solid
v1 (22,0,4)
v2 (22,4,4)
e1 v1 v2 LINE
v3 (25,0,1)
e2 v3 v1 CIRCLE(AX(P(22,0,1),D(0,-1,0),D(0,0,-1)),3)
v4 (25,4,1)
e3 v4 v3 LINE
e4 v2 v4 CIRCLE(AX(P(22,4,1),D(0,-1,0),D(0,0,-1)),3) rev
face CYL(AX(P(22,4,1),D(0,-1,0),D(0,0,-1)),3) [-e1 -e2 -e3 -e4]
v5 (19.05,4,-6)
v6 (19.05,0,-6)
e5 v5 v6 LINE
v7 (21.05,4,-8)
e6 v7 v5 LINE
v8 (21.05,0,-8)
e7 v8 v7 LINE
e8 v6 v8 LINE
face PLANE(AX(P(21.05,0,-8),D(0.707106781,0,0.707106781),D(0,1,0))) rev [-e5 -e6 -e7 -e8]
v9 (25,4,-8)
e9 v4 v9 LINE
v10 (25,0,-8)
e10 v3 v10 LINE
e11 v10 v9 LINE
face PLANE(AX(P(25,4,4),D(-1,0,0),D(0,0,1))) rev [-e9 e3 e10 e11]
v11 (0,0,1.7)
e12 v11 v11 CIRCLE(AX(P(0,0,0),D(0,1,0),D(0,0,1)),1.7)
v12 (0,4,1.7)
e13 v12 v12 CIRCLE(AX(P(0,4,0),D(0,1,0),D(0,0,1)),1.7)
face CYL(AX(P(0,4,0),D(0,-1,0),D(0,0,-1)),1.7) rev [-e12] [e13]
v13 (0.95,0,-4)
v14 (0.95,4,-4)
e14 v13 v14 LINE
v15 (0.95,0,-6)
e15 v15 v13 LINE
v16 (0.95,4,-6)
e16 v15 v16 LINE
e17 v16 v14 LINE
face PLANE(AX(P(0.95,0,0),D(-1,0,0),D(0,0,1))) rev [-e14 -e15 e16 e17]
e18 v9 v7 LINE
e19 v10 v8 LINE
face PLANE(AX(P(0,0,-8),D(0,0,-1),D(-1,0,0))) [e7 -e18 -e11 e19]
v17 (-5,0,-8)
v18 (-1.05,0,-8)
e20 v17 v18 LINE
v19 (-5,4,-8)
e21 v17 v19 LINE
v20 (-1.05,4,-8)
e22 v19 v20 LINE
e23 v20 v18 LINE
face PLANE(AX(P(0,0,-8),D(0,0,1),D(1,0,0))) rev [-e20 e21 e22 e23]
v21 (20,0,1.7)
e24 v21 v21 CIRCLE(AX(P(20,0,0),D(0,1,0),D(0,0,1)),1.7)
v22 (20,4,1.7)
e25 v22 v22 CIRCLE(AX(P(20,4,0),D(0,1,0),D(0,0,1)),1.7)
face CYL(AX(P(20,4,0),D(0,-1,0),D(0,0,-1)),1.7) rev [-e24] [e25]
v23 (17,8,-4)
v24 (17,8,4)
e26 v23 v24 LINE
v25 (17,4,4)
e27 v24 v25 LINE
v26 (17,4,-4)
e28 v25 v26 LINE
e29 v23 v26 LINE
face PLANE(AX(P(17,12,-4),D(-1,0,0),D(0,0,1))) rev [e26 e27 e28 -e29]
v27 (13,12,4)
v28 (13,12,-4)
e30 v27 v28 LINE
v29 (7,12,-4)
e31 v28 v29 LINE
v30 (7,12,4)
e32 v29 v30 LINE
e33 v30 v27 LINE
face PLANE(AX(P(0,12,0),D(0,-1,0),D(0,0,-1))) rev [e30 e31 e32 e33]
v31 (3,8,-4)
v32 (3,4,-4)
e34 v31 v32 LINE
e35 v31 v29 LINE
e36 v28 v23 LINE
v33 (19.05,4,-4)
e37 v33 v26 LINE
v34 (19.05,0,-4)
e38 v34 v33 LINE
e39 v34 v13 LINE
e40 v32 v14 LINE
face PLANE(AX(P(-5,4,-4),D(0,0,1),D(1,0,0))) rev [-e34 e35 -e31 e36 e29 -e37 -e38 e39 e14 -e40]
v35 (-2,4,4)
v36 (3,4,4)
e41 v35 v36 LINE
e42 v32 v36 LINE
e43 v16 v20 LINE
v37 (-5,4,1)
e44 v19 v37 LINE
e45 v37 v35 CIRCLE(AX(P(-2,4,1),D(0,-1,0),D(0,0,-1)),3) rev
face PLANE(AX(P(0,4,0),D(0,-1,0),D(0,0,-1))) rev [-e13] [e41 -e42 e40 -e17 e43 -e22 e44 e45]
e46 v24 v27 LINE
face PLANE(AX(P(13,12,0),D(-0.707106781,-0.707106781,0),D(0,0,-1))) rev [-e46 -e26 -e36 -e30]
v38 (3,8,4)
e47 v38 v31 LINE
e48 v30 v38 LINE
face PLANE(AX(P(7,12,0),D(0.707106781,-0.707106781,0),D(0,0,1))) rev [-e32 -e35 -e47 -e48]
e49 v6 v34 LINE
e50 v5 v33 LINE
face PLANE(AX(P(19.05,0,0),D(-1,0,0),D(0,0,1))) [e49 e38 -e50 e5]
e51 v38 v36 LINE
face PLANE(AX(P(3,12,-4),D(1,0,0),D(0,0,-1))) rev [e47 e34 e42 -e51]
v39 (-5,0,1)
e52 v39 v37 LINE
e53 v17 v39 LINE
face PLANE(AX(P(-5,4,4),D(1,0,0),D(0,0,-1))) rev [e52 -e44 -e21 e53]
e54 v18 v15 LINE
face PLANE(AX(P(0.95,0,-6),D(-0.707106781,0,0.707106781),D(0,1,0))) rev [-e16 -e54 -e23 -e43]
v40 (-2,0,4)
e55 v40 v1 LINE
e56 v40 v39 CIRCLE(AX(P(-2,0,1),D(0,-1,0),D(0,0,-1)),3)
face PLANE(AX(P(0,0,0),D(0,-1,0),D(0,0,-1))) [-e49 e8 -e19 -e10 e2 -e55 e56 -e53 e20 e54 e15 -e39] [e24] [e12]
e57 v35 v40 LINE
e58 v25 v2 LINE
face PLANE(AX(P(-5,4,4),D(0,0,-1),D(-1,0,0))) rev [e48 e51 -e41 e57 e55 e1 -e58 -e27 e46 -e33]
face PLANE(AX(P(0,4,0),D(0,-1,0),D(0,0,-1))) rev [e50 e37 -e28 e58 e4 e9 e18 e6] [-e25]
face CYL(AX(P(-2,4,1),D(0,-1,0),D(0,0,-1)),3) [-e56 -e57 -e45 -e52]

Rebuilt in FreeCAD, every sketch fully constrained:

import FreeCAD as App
import Part
import Sketcher


def edges_at(feature, points):
    """Names of the edges that pass closest to the given points."""
    edges = feature.Shape.Edges
    near = lambda p: min(range(len(edges)), key=lambda i: edges[i].distToShape(Part.Vertex(*p))[0])
    return sorted({f"Edge{near(p) + 1}" for p in points})

doc = App.newDocument("Part")
body = doc.addObject("PartDesign::Body", "Body")

# Sketch on XZ plane
sketch1 = body.newObject("Sketcher::SketchObject", "Sketch")
sketch1.AttachmentSupport = (doc.getObject("XZ_Plane"), [""])
sketch1.MapMode = "FlatFace"
sketch1.addGeometry([
    Part.LineSegment(App.Vector(-5, -4, 0), App.Vector(-5, 4, 0)),  # 0
    Part.LineSegment(App.Vector(-5, 4, 0), App.Vector(25, 4, 0)),  # 1
    Part.LineSegment(App.Vector(25, 4, 0), App.Vector(25, -4, 0)),  # 2
    Part.LineSegment(App.Vector(25, -4, 0), App.Vector(-5, -4, 0)),  # 3
    Part.Circle(App.Vector(0, 0, 0), App.Vector(0, 0, 1), 1.7),  # 4
    Part.Circle(App.Vector(20, 0, 0), App.Vector(0, 0, 1), 1.7),  # 5
], False)
sketch1.addConstraint([
    Sketcher.Constraint("Coincident", 0, 2, 1, 1),
    Sketcher.Constraint("Coincident", 1, 2, 2, 1),
    Sketcher.Constraint("Coincident", 2, 2, 3, 1),
    Sketcher.Constraint("Coincident", 3, 2, 0, 1),
    Sketcher.Constraint("Vertical", 0),
    Sketcher.Constraint("Horizontal", 1),
    Sketcher.Constraint("Vertical", 2),
    Sketcher.Constraint("Horizontal", 3),
    Sketcher.Constraint("Coincident", 4, 3, -1, 1),
    Sketcher.Constraint("Equal", 4, 5),
    Sketcher.Constraint("PointOnObject", 5, 3, -1),
    Sketcher.Constraint("Diameter", 4, 3.4),
    Sketcher.Constraint("DistanceX", 1, 1, 1, 2, 30.0),
    Sketcher.Constraint("DistanceY", 0, 1, 0, 2, 8.0),
    Sketcher.Constraint("DistanceX", -1, 1, 5, 3, 20.0),
    Sketcher.Constraint("DistanceX", 0, 2, -1, 1, 5.0),
    Sketcher.Constraint("DistanceY", -1, 1, 0, 2, 4.0),
])
pad1 = body.newObject("PartDesign::Pad", "Pad")
pad1.Profile = sketch1
pad1.Length = 4
pad1.Reversed = True
doc.recompute()

fillet = body.newObject("PartDesign::Fillet", "Fillet")
fillet.Base = (pad1, edges_at(pad1, [(25, 2, 4), (-5, 2, 4)]))
fillet.Radius = 3

# Sketch on XZ plane
sketch2 = body.newObject("Sketcher::SketchObject", "Sketch001")
sketch2.AttachmentSupport = (doc.getObject("XZ_Plane"), [""])
sketch2.MapMode = "FlatFace"
sketch2.AttachmentOffset = App.Placement(App.Vector(0, 0, -4), App.Rotation())
sketch2.addGeometry([
    Part.LineSegment(App.Vector(-5, -8, 0), App.Vector(-5, -4, 0)),  # 0
    Part.LineSegment(App.Vector(-5, -4, 0), App.Vector(0.9, -4, 0)),  # 1
    Part.LineSegment(App.Vector(0.9, -4, 0), App.Vector(0.9, -8, 0)),  # 2
    Part.LineSegment(App.Vector(0.9, -8, 0), App.Vector(-5, -8, 0)),  # 3
    Part.LineSegment(App.Vector(19.1, -8, 0), App.Vector(19.1, -4, 0)),  # 4
    Part.LineSegment(App.Vector(19.1, -4, 0), App.Vector(25, -4, 0)),  # 5
    Part.LineSegment(App.Vector(25, -4, 0), App.Vector(25, -8, 0)),  # 6
    Part.LineSegment(App.Vector(25, -8, 0), App.Vector(19.1, -8, 0)),  # 7
], False)
sketch2.addConstraint([
    Sketcher.Constraint("Coincident", 0, 2, 1, 1),
    Sketcher.Constraint("Coincident", 1, 2, 2, 1),
    Sketcher.Constraint("Coincident", 2, 2, 3, 1),
    Sketcher.Constraint("Coincident", 3, 2, 0, 1),
    Sketcher.Constraint("Coincident", 4, 2, 5, 1),
    Sketcher.Constraint("Coincident", 5, 2, 6, 1),
    Sketcher.Constraint("Coincident", 6, 2, 7, 1),
    Sketcher.Constraint("Coincident", 7, 2, 4, 1),
    Sketcher.Constraint("Vertical", 0),
    Sketcher.Constraint("Horizontal", 1),
    Sketcher.Constraint("Vertical", 2),
    Sketcher.Constraint("Horizontal", 3),
    Sketcher.Constraint("Vertical", 4),
    Sketcher.Constraint("Horizontal", 5),
    Sketcher.Constraint("Vertical", 6),
    Sketcher.Constraint("Horizontal", 7),
    Sketcher.Constraint("Horizontal", 1, 2, 4, 2),
    Sketcher.Constraint("Horizontal", 3, 2, 6, 2),
    Sketcher.Constraint("Equal", 3, 5),
    Sketcher.Constraint("DistanceY", 0, 1, 0, 2, 4.0),
    Sketcher.Constraint("DistanceX", 0, 2, -1, 1, 5.0),
    Sketcher.Constraint("DistanceY", 0, 2, -1, 1, 4.0),
    Sketcher.Constraint("DistanceX", -1, 1, 5, 2, 25.0),
    Sketcher.Constraint("DistanceX", 1, 1, 1, 2, 5.95),
])
pad2 = body.newObject("PartDesign::Pad", "Pad001")
pad2.Profile = sketch2
pad2.Length = 4

# Sketch on XZ plane
sketch3 = body.newObject("Sketcher::SketchObject", "Sketch002")
sketch3.AttachmentSupport = (doc.getObject("XZ_Plane"), [""])
sketch3.MapMode = "FlatFace"
sketch3.AttachmentOffset = App.Placement(App.Vector(0, 0, -4), App.Rotation())
sketch3.addGeometry([
    Part.LineSegment(App.Vector(3, -4, 0), App.Vector(3, 4, 0)),
    Part.LineSegment(App.Vector(3, 4, 0), App.Vector(17, 4, 0)),
    Part.LineSegment(App.Vector(17, 4, 0), App.Vector(17, -4, 0)),
    Part.LineSegment(App.Vector(17, -4, 0), App.Vector(3, -4, 0)),
], False)
sketch3.addConstraint([
    Sketcher.Constraint("Coincident", 0, 2, 1, 1),
    Sketcher.Constraint("Coincident", 1, 2, 2, 1),
    Sketcher.Constraint("Coincident", 2, 2, 3, 1),
    Sketcher.Constraint("Coincident", 3, 2, 0, 1),
    Sketcher.Constraint("Vertical", 0),
    Sketcher.Constraint("Horizontal", 1),
    Sketcher.Constraint("Vertical", 2),
    Sketcher.Constraint("Horizontal", 3),
    Sketcher.Constraint("DistanceX", 1, 1, 1, 2, 14.0),
    Sketcher.Constraint("DistanceY", 0, 1, 0, 2, 8.0),
    Sketcher.Constraint("DistanceX", -1, 1, 0, 2, 3.0),
    Sketcher.Constraint("DistanceY", -1, 1, 0, 2, 4.0),
])
pad3 = body.newObject("PartDesign::Pad", "Pad002")
pad3.Profile = sketch3
pad3.Length = 8
pad3.Reversed = True
doc.recompute()

chamfer = body.newObject("PartDesign::Chamfer", "Chamfer")
chamfer.Base = (pad3, edges_at(pad3, [(17, 12, 0), (3, 12, 0)]))
chamfer.Size = 4
doc.recompute()

chamfer2 = body.newObject("PartDesign::Chamfer", "Chamfer001")
chamfer2.Base = (chamfer, edges_at(chamfer, [(0.95, 2, -8), (19.05, 2, -8)]))
chamfer2.Size = 2

doc.recompute()
